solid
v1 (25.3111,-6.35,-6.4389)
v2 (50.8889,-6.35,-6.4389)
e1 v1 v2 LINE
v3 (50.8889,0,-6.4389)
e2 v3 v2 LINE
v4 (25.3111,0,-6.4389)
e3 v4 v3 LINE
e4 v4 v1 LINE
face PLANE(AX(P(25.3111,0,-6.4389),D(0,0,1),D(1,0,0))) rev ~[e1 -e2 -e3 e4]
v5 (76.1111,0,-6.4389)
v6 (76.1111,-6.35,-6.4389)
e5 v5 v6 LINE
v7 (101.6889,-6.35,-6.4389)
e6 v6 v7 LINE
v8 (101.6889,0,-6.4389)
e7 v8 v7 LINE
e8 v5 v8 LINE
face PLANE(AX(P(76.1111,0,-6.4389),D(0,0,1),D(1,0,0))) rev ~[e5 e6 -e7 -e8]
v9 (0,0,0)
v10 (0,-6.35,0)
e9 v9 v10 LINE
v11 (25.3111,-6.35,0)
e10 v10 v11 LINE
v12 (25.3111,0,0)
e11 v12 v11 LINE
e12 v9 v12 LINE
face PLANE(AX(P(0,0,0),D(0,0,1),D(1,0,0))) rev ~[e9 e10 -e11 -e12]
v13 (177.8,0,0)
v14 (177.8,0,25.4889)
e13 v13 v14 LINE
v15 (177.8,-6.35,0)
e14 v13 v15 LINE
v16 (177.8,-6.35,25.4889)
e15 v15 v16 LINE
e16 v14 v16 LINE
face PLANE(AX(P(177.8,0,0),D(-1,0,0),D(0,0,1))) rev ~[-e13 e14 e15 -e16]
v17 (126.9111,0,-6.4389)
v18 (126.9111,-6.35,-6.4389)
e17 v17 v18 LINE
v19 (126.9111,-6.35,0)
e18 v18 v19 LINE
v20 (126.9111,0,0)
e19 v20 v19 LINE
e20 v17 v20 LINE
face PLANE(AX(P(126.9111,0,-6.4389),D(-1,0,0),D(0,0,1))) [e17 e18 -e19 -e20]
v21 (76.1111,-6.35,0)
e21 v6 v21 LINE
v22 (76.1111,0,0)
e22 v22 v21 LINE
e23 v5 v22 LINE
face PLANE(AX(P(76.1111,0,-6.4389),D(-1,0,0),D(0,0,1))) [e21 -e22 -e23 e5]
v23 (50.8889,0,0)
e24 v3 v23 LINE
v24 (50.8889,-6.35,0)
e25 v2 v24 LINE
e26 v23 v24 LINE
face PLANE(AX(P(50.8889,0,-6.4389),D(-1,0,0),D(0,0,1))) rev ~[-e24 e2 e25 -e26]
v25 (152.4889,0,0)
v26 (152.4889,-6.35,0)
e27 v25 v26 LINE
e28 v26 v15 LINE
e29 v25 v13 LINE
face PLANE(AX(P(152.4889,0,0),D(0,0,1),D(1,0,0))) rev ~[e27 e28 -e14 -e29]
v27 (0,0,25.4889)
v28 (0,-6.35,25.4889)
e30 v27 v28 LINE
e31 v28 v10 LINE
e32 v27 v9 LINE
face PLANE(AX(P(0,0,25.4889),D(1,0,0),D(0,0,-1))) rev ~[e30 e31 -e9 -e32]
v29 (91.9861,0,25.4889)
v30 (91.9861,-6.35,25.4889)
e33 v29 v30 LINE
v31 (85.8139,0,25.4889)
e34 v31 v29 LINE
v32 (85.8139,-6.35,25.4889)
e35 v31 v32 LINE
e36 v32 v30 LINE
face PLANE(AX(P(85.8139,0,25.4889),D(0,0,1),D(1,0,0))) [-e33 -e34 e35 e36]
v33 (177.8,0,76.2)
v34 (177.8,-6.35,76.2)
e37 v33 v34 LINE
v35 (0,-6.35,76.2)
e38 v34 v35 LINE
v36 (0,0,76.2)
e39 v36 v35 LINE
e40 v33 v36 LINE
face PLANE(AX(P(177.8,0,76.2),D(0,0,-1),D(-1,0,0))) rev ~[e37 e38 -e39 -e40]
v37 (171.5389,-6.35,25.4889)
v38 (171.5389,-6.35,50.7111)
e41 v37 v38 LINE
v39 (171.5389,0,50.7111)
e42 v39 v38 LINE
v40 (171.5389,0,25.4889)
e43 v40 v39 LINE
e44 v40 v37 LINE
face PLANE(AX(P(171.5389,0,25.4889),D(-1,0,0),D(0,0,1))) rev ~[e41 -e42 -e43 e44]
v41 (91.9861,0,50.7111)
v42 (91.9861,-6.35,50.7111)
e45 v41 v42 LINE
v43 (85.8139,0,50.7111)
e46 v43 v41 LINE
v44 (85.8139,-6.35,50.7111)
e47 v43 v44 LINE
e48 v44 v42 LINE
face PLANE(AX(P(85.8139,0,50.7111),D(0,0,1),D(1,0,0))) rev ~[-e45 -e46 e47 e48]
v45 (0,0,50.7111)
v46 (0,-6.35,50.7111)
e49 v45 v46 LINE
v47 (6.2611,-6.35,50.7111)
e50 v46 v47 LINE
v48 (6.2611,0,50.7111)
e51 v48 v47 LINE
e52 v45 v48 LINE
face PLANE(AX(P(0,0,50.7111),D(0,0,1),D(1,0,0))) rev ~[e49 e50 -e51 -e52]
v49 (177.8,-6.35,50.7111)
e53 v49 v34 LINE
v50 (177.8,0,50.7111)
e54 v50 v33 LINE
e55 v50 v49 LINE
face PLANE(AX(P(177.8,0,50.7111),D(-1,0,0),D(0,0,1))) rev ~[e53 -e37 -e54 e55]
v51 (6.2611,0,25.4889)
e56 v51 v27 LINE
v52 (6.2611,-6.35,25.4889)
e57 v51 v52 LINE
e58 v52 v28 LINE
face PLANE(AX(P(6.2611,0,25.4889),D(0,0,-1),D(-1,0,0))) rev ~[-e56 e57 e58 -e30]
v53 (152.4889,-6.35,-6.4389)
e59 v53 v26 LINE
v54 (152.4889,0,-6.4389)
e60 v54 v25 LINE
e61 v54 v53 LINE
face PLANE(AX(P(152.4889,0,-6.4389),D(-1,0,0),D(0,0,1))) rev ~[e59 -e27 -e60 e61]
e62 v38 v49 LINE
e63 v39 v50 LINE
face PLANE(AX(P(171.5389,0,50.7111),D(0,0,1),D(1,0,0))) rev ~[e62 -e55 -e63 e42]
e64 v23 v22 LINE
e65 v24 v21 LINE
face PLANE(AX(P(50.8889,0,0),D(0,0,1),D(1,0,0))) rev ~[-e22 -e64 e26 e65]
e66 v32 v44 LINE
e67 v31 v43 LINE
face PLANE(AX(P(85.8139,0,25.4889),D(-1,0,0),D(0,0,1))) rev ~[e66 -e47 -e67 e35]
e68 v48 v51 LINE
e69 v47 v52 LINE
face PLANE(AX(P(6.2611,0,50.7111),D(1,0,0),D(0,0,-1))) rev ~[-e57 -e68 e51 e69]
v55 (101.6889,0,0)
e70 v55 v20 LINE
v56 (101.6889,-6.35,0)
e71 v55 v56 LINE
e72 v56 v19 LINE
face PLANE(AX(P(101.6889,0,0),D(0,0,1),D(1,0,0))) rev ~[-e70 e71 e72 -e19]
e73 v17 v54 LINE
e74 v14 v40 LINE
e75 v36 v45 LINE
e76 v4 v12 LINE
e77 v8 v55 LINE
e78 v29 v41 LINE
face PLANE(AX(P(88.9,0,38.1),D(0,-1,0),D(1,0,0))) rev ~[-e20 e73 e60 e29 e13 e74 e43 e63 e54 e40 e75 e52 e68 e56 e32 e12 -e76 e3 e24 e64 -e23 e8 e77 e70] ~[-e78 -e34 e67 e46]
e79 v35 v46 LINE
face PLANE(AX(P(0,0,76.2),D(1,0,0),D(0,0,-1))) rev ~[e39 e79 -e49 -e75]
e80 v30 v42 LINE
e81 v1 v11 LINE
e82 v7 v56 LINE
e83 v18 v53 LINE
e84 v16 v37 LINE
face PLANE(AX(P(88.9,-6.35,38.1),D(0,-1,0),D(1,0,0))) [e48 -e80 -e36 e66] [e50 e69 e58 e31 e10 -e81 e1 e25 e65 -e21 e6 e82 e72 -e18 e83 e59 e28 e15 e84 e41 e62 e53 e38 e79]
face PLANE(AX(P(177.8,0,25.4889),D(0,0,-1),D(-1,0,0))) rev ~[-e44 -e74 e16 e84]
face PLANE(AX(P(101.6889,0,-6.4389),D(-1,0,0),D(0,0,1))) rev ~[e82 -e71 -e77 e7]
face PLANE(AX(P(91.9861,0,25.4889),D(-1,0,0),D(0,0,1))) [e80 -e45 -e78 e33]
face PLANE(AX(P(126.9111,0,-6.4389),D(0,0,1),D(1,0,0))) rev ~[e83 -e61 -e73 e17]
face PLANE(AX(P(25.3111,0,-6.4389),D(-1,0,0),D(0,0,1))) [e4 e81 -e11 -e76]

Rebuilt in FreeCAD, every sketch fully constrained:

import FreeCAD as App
import Part
import Sketcher
Q = App.Units.Quantity

doc = App.newDocument("Part")
body = doc.addObject("PartDesign::Body", "Body")

sketch1 = body.newObject("Sketcher::SketchObject", "Sketch")
sketch1.AttachmentSupport = (doc.getObject("XZ_Plane"), [""])
sketch1.MapMode = "FlatFace"
sketch1.addGeometry([
    Part.LineSegment(App.Vector(0, 25.4889, 0), App.Vector(0, 0, 0)),
    Part.LineSegment(App.Vector(0, 0, 0), App.Vector(25.3111, 0, 0)),
    Part.LineSegment(App.Vector(25.3111, 0, 0), App.Vector(25.3111, -6.4389, 0)),
    Part.LineSegment(App.Vector(25.3111, -6.4389, 0), App.Vector(50.8889, -6.4389, 0)),
    Part.LineSegment(App.Vector(50.8889, -6.4389, 0), App.Vector(50.8889, 0, 0)),
    Part.LineSegment(App.Vector(50.8889, 0, 0), App.Vector(76.1111, 0, 0)),
    Part.LineSegment(App.Vector(76.1111, 0, 0), App.Vector(76.1111, -6.4389, 0)),
    Part.LineSegment(App.Vector(76.1111, -6.4389, 0), App.Vector(101.6889, -6.4389, 0)),
    Part.LineSegment(App.Vector(101.6889, -6.4389, 0), App.Vector(101.6889, 0, 0)),
    Part.LineSegment(App.Vector(101.6889, 0, 0), App.Vector(126.9111, 0, 0)),
    Part.LineSegment(App.Vector(126.9111, 0, 0), App.Vector(126.9111, -6.4389, 0)),
    Part.LineSegment(App.Vector(126.9111, -6.4389, 0), App.Vector(152.4889, -6.4389, 0)),
    Part.LineSegment(App.Vector(152.4889, -6.4389, 0), App.Vector(152.4889, 0, 0)),
    Part.LineSegment(App.Vector(152.4889, 0, 0), App.Vector(177.8, 0, 0)),
    Part.LineSegment(App.Vector(177.8, 0, 0), App.Vector(177.8, 25.4889, 0)),
    Part.LineSegment(App.Vector(177.8, 25.4889, 0), App.Vector(171.5389, 25.4889, 0)),
    Part.LineSegment(App.Vector(171.5389, 25.4889, 0), App.Vector(171.5389, 50.7111, 0)),
    Part.LineSegment(App.Vector(171.5389, 50.7111, 0), App.Vector(177.8, 50.7111, 0)),
    Part.LineSegment(App.Vector(177.8, 50.7111, 0), App.Vector(177.8, 76.2, 0)),
    Part.LineSegment(App.Vector(177.8, 76.2, 0), App.Vector(0, 76.2, 0)),
    Part.LineSegment(App.Vector(0, 76.2, 0), App.Vector(0, 50.7111, 0)),
    Part.LineSegment(App.Vector(0, 50.7111, 0), App.Vector(6.2611, 50.7111, 0)),
    Part.LineSegment(App.Vector(6.2611, 50.7111, 0), App.Vector(6.2611, 25.4889, 0)),
    Part.LineSegment(App.Vector(6.2611, 25.4889, 0), App.Vector(0, 25.4889, 0)),
    Part.LineSegment(App.Vector(91.9861, 25.4889, 0), App.Vector(85.8139, 25.4889, 0)),
    Part.LineSegment(App.Vector(85.8139, 25.4889, 0), App.Vector(85.8139, 50.7111, 0)),
    Part.LineSegment(App.Vector(85.8139, 50.7111, 0), App.Vector(91.9861, 50.7111, 0)),
    Part.LineSegment(App.Vector(91.9861, 50.7111, 0), App.Vector(91.9861, 25.4889, 0)),
], False)
sketch1.addConstraint([
    Sketcher.Constraint("Coincident", 0, 2, 1, 1),
    Sketcher.Constraint("Coincident", 1, 2, 2, 1),
    Sketcher.Constraint("Coincident", 2, 2, 3, 1),
    Sketcher.Constraint("Coincident", 3, 2, 4, 1),
    Sketcher.Constraint("Coincident", 4, 2, 5, 1),
    Sketcher.Constraint("Coincident", 5, 2, 6, 1),
    Sketcher.Constraint("Coincident", 6, 2, 7, 1),
    Sketcher.Constraint("Coincident", 7, 2, 8, 1),
    Sketcher.Constraint("Coincident", 8, 2, 9, 1),
    Sketcher.Constraint("Coincident", 9, 2, 10, 1),
    Sketcher.Constraint("Coincident", 10, 2, 11, 1),
    Sketcher.Constraint("Coincident", 11, 2, 12, 1),
    Sketcher.Constraint("Coincident", 12, 2, 13, 1),
    Sketcher.Constraint("Coincident", 13, 2, 14, 1),
    Sketcher.Constraint("Coincident", 14, 2, 15, 1),
    Sketcher.Constraint("Coincident", 15, 2, 16, 1),
    Sketcher.Constraint("Coincident", 16, 2, 17, 1),
    Sketcher.Constraint("Coincident", 17, 2, 18, 1),
    Sketcher.Constraint("Coincident", 18, 2, 19, 1),
    Sketcher.Constraint("Coincident", 19, 2, 20, 1),
    Sketcher.Constraint("Coincident", 20, 2, 21, 1),
    Sketcher.Constraint("Coincident", 21, 2, 22, 1),
    Sketcher.Constraint("Coincident", 22, 2, 23, 1),
    Sketcher.Constraint("Coincident", 23, 2, 0, 1),
    Sketcher.Constraint("Coincident", 24, 2, 25, 1),
    Sketcher.Constraint("Coincident", 25, 2, 26, 1),
    Sketcher.Constraint("Coincident", 26, 2, 27, 1),
    Sketcher.Constraint("Coincident", 27, 2, 24, 1),
    Sketcher.Constraint("Vertical", 0),
    Sketcher.Constraint("Horizontal", 1),
    Sketcher.Constraint("Vertical", 2),
    Sketcher.Constraint("Horizontal", 3),
    Sketcher.Constraint("Vertical", 4),
    Sketcher.Constraint("Horizontal", 5),
    Sketcher.Constraint("Vertical", 6),
    Sketcher.Constraint("Horizontal", 7),
    Sketcher.Constraint("Vertical", 8),
    Sketcher.Constraint("Horizontal", 9),
    Sketcher.Constraint("Vertical", 10),
    Sketcher.Constraint("Horizontal", 11),
    Sketcher.Constraint("Vertical", 12),
    Sketcher.Constraint("Horizontal", 13),
    Sketcher.Constraint("Vertical", 14),
    Sketcher.Constraint("Horizontal", 15),
    Sketcher.Constraint("Vertical", 16),
    Sketcher.Constraint("Horizontal", 17),
    Sketcher.Constraint("Vertical", 18),
    Sketcher.Constraint("Horizontal", 19),
    Sketcher.Constraint("Vertical", 20),
    Sketcher.Constraint("Horizontal", 21),
    Sketcher.Constraint("Vertical", 22),
    Sketcher.Constraint("Horizontal", 23),
    Sketcher.Constraint("Horizontal", 24),
    Sketcher.Constraint("Vertical", 25),
    Sketcher.Constraint("Horizontal", 26),
    Sketcher.Constraint("Vertical", 27),
    Sketcher.Constraint("Coincident", 0, 2, -1, 1),
    Sketcher.Constraint("PointOnObject", 4, 2, -1),
    Sketcher.Constraint("PointOnObject", 8, 2, -1),
    Sketcher.Constraint("PointOnObject", 12, 2, -1),
    Sketcher.Constraint("PointOnObject", 19, 2, -2),
    Sketcher.Constraint("Horizontal", 3, 2, 6, 2),
    Sketcher.Constraint("Horizontal", 7, 2, 10, 2),
    Sketcher.Constraint("Horizontal", 17, 2, 20, 2),
    Sketcher.Constraint("Horizontal", 15, 2, 22, 2),
    Sketcher.Constraint("Horizontal", 23, 2, 24, 2),
    Sketcher.Constraint("Horizontal", 21, 2, 25, 2),
    Sketcher.Constraint("Vertical", 14, 2, 17, 2),
    Sketcher.Constraint("Equal", 3, 7),
    Sketcher.Constraint("Equal", 5, 9),
    Sketcher.Constraint("Equal", 7, 11),
    Sketcher.Constraint("Equal", 1, 13),
    Sketcher.Constraint("Equal", 17, 21),
    Sketcher.Constraint("Equal", 9, 16),
    Sketcher.Constraint("Equal", 14, 18),
    Sketcher.Constraint("DistanceX", 19, 2, 19, 1, Q("7 in")),
    Sketcher.Constraint("DistanceY", -1, 1, 18, 2, Q("3 in")),
    Sketcher.Constraint("DistanceX", 1, 2, 5, 2, Q("2 in")),
    Sketcher.Constraint("DistanceX", 3, 1, 3, 2, Q("1.007 in")),
    Sketcher.Constraint("DistanceX", 24, 2, 24, 1, Q("0.243 in")),
    Sketcher.Constraint("DistanceX", 12, 2, 15, 2, Q("0.75 in")),
    Sketcher.Constraint("DistanceY", 11, 2, 16, 2, Q("2.25 in")),
    Sketcher.Constraint("DistanceX", 5, 2, 24, 2, Q("0.382 in")),
])
pad1 = body.newObject("PartDesign::Pad", "Pad")
pad1.Profile = sketch1
pad1.Length = Q("0.25 in")

doc.recompute()
